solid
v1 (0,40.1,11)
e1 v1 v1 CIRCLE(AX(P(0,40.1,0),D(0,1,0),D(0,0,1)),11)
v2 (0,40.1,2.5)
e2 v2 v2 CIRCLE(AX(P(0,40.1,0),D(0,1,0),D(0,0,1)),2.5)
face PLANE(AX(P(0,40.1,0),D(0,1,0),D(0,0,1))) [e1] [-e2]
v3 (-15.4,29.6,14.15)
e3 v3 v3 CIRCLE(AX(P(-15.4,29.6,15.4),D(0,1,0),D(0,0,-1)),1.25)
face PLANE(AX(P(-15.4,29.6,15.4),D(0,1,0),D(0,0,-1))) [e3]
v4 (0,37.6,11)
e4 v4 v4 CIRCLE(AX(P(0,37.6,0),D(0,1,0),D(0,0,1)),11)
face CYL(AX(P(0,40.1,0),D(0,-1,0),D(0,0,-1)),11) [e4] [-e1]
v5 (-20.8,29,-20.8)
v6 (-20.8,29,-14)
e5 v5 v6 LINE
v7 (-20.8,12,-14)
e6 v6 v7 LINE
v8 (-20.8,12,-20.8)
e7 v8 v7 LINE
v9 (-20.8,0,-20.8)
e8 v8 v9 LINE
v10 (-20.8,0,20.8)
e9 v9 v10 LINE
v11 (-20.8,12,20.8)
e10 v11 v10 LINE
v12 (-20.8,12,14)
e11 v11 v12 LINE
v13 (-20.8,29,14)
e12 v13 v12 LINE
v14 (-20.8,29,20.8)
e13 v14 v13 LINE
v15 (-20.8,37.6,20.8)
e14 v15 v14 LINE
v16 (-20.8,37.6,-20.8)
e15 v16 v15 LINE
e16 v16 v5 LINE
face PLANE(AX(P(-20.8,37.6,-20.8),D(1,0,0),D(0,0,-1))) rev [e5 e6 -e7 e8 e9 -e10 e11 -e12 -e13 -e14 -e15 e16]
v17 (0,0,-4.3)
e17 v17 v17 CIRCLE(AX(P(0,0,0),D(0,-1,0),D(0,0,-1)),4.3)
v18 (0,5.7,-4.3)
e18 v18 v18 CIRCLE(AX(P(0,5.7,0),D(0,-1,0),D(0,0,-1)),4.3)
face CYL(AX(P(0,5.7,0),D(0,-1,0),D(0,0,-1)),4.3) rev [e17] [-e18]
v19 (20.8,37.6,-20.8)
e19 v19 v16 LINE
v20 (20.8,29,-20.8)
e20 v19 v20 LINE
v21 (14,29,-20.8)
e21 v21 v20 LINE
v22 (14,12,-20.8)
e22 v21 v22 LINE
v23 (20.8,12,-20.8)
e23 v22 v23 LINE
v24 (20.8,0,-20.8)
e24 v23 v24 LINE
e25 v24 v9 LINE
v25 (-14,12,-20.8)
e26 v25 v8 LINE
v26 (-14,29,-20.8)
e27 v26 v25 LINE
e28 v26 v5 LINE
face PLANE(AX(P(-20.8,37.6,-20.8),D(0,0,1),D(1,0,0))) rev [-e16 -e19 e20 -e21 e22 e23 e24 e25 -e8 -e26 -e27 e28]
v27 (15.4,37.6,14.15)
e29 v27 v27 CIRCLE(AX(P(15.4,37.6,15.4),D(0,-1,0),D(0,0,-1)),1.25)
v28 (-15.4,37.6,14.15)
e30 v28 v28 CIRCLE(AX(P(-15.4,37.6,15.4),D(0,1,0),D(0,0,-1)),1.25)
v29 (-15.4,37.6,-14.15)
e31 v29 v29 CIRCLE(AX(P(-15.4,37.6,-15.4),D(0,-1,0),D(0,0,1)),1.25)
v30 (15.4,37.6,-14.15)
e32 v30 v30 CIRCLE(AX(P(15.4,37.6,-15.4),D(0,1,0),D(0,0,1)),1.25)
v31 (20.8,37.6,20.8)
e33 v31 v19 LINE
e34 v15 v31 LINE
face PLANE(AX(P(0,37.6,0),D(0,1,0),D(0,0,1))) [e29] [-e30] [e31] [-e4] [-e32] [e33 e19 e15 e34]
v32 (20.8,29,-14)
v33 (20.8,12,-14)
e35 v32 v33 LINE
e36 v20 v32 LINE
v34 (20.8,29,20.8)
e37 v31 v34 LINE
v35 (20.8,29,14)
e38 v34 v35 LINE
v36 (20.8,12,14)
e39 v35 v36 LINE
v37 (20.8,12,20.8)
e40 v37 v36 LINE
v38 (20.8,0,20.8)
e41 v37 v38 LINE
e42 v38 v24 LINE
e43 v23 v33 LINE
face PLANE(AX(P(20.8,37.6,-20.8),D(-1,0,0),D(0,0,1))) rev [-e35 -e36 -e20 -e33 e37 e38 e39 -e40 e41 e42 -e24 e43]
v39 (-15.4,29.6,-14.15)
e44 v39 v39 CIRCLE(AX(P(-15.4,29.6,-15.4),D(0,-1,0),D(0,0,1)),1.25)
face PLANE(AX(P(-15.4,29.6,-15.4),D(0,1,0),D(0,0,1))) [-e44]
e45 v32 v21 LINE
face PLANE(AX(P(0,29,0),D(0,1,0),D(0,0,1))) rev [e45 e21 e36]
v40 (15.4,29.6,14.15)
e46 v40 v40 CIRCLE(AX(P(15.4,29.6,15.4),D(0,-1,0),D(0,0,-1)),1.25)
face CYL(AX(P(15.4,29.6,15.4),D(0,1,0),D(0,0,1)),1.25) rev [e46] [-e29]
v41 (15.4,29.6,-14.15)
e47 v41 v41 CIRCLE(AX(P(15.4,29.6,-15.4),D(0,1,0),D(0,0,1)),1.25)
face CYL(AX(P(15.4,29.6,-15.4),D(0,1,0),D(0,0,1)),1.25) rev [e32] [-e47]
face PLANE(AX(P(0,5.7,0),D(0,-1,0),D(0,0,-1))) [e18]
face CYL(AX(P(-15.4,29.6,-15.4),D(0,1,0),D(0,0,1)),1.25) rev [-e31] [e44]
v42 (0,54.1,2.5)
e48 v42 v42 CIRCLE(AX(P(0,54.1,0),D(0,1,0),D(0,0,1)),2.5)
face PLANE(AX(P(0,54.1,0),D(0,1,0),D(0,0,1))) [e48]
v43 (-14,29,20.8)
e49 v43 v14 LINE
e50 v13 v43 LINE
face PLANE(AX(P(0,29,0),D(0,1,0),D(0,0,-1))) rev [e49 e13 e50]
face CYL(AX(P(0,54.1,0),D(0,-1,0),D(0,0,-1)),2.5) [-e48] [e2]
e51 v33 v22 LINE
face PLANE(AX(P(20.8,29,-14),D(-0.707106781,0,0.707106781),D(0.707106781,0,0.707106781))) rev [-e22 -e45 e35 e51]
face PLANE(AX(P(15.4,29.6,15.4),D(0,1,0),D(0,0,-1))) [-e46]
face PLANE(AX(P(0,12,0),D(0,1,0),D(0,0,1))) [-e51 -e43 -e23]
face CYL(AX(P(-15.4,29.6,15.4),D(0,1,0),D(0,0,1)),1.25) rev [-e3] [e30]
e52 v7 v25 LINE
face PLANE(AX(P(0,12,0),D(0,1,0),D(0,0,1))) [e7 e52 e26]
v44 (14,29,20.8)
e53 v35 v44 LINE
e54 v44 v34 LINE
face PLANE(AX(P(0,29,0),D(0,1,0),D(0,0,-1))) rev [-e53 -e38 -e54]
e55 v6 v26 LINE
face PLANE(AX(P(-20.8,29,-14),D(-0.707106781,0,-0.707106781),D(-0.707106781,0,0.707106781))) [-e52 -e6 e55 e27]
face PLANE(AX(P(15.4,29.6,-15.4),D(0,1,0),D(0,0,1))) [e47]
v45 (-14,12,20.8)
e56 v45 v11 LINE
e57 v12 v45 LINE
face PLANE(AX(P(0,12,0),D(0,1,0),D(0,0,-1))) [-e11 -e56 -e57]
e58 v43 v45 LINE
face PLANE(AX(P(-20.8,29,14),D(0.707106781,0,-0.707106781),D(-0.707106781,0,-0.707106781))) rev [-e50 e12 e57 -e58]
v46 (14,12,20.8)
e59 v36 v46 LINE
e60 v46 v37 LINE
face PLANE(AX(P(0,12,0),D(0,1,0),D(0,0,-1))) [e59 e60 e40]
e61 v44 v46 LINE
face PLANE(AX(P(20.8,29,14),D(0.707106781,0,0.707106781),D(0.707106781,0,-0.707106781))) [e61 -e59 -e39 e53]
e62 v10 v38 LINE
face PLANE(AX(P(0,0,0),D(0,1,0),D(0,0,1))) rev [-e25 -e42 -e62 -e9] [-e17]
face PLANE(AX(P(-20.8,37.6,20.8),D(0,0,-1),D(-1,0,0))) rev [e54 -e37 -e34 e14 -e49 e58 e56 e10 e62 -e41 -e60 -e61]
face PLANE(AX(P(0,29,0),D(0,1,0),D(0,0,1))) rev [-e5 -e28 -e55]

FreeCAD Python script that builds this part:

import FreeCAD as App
import Part
import Sketcher

V = App.Vector

doc = App.newDocument("Part")
body = doc.addObject("PartDesign::Body", "Body")

sketch1 = body.newObject("Sketcher::SketchObject", "Sketch")
sketch1.AttachmentSupport = (doc.getObject("XZ_Plane"), [""])
sketch1.MapMode = "FlatFace"
sketch1.addGeometry([
    Part.LineSegment(V(-21, -21, 0), V(-21, 21, 0)),
    Part.LineSegment(V(-21, 21, 0), V(21, 21, 0)),
    Part.LineSegment(V(21, 21, 0), V(21, -21, 0)),
    Part.LineSegment(V(21, -21, 0), V(-21, -21, 0)),
], False)
sketch1.addConstraint([
    Sketcher.Constraint("Coincident", 0, 2, 1, 1),
    Sketcher.Constraint("Coincident", 1, 2, 2, 1),
    Sketcher.Constraint("Coincident", 2, 2, 3, 1),
    Sketcher.Constraint("Coincident", 3, 2, 0, 1),
    Sketcher.Constraint("Vertical", 0),
    Sketcher.Constraint("Horizontal", 1),
    Sketcher.Constraint("Vertical", 2),
    Sketcher.Constraint("Horizontal", 3),
    Sketcher.Constraint("Symmetric", 0, 2, 2, 2, -1, 1),
    Sketcher.Constraint("Equal", 3, 0),
    Sketcher.Constraint("DistanceX", 1, 1, 1, 2, 41.6),
])
pad1 = body.newObject("PartDesign::Pad", "Pad")
pad1.Profile = sketch1
pad1.Length = 37.6
pad1.Reversed = True

sketch2 = body.newObject("Sketcher::SketchObject", "Sketch001")
sketch2.AttachmentSupport = (doc.getObject("XZ_Plane"), [""])
sketch2.MapMode = "FlatFace"
sketch2.AttachmentOffset = App.Placement(V(0, 0, -37.6), App.Rotation())
sketch2.addGeometry(Part.Circle(V(0, 0, 0), V(0, 0, 1), 11), False)
sketch2.addConstraint([
    Sketcher.Constraint("Coincident", 0, 3, -1, 1),
    Sketcher.Constraint("Diameter", 0, 22.0),
])
pad2 = body.newObject("PartDesign::Pad", "Pad001")
pad2.Profile = sketch2
pad2.Length = 2.5
pad2.Reversed = True

sketch3 = body.newObject("Sketcher::SketchObject", "Sketch002")
sketch3.AttachmentSupport = (doc.getObject("XZ_Plane"), [""])
sketch3.MapMode = "FlatFace"
sketch3.AttachmentOffset = App.Placement(V(0, 0, -40.1), App.Rotation())
sketch3.addGeometry(Part.Circle(V(0, 0, 0), V(0, 0, 1), 2.5), False)
sketch3.addConstraint([
    Sketcher.Constraint("Coincident", 0, 3, -1, 1),
    Sketcher.Constraint("Diameter", 0, 5.0),
])
pad3 = body.newObject("PartDesign::Pad", "Pad002")
pad3.Profile = sketch3
pad3.Length = 14
pad3.Reversed = True

sketch4 = body.newObject("Sketcher::SketchObject", "Sketch003")
sketch4.AttachmentSupport = (doc.getObject("XZ_Plane"), [""])
sketch4.MapMode = "FlatFace"
sketch4.AttachmentOffset = App.Placement(V(0, 0, -37.6), App.Rotation())
sketch4.addGeometry(Part.Circle(V(15.4, -15.4, 0), V(0, 0, 1), 1.2), False)
sketch4.addConstraint([
    Sketcher.Constraint("Diameter", 0, 2.5),
    Sketcher.Constraint("DistanceX", -1, 1, 0, 3, 15.4),
    Sketcher.Constraint("DistanceY", 0, 3, -1, 1, 15.4),
])
pocket1 = body.newObject("PartDesign::Pocket", "Pocket")
pocket1.Profile = sketch4
pocket1.Length = 8
pocket1.Reversed = True
doc.recompute()

mirrored = body.newObject("PartDesign::Mirrored", "Mirrored")
mirrored.Originals = [pocket1]
mirrored.MirrorPlane = (doc.getObject("YZ_Plane"), [""])
body.Tip = mirrored
doc.recompute()

mirrored2 = body.newObject("PartDesign::Mirrored", "Mirrored001")
mirrored2.Originals = [pocket1]
mirrored2.MirrorPlane = (doc.getObject("XY_Plane"), [""])
body.Tip = mirrored2

sketch5 = body.newObject("Sketcher::SketchObject", "Sketch004")
sketch5.AttachmentSupport = (doc.getObject("XZ_Plane"), [""])
sketch5.MapMode = "FlatFace"
sketch5.AttachmentOffset = App.Placement(V(0, 0, -37.6), App.Rotation())
sketch5.addGeometry(Part.Circle(V(-15.4, 15.4, 0), V(0, 0, 1), 1.2), False)
sketch5.addConstraint([
    Sketcher.Constraint("Diameter", 0, 2.5),
    Sketcher.Constraint("DistanceX", 0, 3, -1, 1, 15.4),
    Sketcher.Constraint("DistanceY", -1, 1, 0, 3, 15.4),
])
pocket2 = body.newObject("PartDesign::Pocket", "Pocket001")
pocket2.Profile = sketch5
pocket2.Length = 8
pocket2.Reversed = True

sketch6 = body.newObject("Sketcher::SketchObject", "Sketch005")
sketch6.AttachmentSupport = (doc.getObject("XZ_Plane"), [""])
sketch6.MapMode = "FlatFace"
sketch6.AttachmentOffset = App.Placement(V(0, 0, -12), App.Rotation())
sketch6.addGeometry([
    Part.LineSegment(V(14, -21, 0), V(21, -14, 0)),
    Part.LineSegment(V(21, -14, 0), V(21, -21, 0)),
    Part.LineSegment(V(21, -21, 0), V(14, -21, 0)),
], False)
sketch6.addConstraint([
    Sketcher.Constraint("Coincident", 0, 2, 1, 1),
    Sketcher.Constraint("Coincident", 1, 2, 2, 1),
    Sketcher.Constraint("Coincident", 2, 2, 0, 1),
    Sketcher.Constraint("Vertical", 1),
    Sketcher.Constraint("Horizontal", 2),
    Sketcher.Constraint("Equal", 2, 1),
    Sketcher.Constraint("DistanceX", 2, 2, 2, 1, 6.8),
    Sketcher.Constraint("DistanceY", 0, 2, -1, 1, 14.0),
    Sketcher.Constraint("DistanceX", -1, 1, 2, 2, 14.0),
])
pocket3 = body.newObject("PartDesign::Pocket", "Pocket002")
pocket3.Profile = sketch6
pocket3.Length = 17
doc.recompute()

mirrored3 = body.newObject("PartDesign::Mirrored", "Mirrored002")
mirrored3.Originals = [pocket3]
mirrored3.MirrorPlane = (doc.getObject("XY_Plane"), [""])
body.Tip = mirrored3
doc.recompute()

mirrored4 = body.newObject("PartDesign::Mirrored", "Mirrored003")
mirrored4.Originals = [pocket3]
mirrored4.MirrorPlane = (doc.getObject("YZ_Plane"), [""])
body.Tip = mirrored4

sketch7 = body.newObject("Sketcher::SketchObject", "Sketch006")
sketch7.AttachmentSupport = (doc.getObject("XZ_Plane"), [""])
sketch7.MapMode = "FlatFace"
sketch7.AttachmentOffset = App.Placement(V(0, 0, -12), App.Rotation())
sketch7.addGeometry([
    Part.LineSegment(V(-14, 21, 0), V(-21, 14, 0)),
    Part.LineSegment(V(-21, 14, 0), V(-21, 21, 0)),
    Part.LineSegment(V(-21, 21, 0), V(-14, 21, 0)),
], False)
sketch7.addConstraint([
    Sketcher.Constraint("Coincident", 0, 2, 1, 1),
    Sketcher.Constraint("Coincident", 1, 2, 2, 1),
    Sketcher.Constraint("Coincident", 2, 2, 0, 1),
    Sketcher.Constraint("Vertical", 1),
    Sketcher.Constraint("Horizontal", 2),
    Sketcher.Constraint("Equal", 2, 1),
    Sketcher.Constraint("DistanceX", 2, 1, 2, 2, 6.8),
    Sketcher.Constraint("DistanceY", -1, 1, 0, 2, 14.0),
    Sketcher.Constraint("DistanceX", 2, 2, -1, 1, 14.0),
])
pocket4 = body.newObject("PartDesign::Pocket", "Pocket003")
pocket4.Profile = sketch7
pocket4.Length = 17

sketch8 = body.newObject("Sketcher::SketchObject", "Sketch007")
sketch8.AttachmentSupport = (doc.getObject("XZ_Plane"), [""])
sketch8.MapMode = "FlatFace"
sketch8.addGeometry(Part.Circle(V(0, 0, 0), V(0, 0, 1), 4.3), False)
sketch8.addConstraint([
    Sketcher.Constraint("Coincident", 0, 3, -1, 1),
    Sketcher.Constraint("Diameter", 0, 8.6),
])
pocket5 = body.newObject("PartDesign::Pocket", "Pocket004")
pocket5.Profile = sketch8
pocket5.Length = 5.7

doc.recompute()
